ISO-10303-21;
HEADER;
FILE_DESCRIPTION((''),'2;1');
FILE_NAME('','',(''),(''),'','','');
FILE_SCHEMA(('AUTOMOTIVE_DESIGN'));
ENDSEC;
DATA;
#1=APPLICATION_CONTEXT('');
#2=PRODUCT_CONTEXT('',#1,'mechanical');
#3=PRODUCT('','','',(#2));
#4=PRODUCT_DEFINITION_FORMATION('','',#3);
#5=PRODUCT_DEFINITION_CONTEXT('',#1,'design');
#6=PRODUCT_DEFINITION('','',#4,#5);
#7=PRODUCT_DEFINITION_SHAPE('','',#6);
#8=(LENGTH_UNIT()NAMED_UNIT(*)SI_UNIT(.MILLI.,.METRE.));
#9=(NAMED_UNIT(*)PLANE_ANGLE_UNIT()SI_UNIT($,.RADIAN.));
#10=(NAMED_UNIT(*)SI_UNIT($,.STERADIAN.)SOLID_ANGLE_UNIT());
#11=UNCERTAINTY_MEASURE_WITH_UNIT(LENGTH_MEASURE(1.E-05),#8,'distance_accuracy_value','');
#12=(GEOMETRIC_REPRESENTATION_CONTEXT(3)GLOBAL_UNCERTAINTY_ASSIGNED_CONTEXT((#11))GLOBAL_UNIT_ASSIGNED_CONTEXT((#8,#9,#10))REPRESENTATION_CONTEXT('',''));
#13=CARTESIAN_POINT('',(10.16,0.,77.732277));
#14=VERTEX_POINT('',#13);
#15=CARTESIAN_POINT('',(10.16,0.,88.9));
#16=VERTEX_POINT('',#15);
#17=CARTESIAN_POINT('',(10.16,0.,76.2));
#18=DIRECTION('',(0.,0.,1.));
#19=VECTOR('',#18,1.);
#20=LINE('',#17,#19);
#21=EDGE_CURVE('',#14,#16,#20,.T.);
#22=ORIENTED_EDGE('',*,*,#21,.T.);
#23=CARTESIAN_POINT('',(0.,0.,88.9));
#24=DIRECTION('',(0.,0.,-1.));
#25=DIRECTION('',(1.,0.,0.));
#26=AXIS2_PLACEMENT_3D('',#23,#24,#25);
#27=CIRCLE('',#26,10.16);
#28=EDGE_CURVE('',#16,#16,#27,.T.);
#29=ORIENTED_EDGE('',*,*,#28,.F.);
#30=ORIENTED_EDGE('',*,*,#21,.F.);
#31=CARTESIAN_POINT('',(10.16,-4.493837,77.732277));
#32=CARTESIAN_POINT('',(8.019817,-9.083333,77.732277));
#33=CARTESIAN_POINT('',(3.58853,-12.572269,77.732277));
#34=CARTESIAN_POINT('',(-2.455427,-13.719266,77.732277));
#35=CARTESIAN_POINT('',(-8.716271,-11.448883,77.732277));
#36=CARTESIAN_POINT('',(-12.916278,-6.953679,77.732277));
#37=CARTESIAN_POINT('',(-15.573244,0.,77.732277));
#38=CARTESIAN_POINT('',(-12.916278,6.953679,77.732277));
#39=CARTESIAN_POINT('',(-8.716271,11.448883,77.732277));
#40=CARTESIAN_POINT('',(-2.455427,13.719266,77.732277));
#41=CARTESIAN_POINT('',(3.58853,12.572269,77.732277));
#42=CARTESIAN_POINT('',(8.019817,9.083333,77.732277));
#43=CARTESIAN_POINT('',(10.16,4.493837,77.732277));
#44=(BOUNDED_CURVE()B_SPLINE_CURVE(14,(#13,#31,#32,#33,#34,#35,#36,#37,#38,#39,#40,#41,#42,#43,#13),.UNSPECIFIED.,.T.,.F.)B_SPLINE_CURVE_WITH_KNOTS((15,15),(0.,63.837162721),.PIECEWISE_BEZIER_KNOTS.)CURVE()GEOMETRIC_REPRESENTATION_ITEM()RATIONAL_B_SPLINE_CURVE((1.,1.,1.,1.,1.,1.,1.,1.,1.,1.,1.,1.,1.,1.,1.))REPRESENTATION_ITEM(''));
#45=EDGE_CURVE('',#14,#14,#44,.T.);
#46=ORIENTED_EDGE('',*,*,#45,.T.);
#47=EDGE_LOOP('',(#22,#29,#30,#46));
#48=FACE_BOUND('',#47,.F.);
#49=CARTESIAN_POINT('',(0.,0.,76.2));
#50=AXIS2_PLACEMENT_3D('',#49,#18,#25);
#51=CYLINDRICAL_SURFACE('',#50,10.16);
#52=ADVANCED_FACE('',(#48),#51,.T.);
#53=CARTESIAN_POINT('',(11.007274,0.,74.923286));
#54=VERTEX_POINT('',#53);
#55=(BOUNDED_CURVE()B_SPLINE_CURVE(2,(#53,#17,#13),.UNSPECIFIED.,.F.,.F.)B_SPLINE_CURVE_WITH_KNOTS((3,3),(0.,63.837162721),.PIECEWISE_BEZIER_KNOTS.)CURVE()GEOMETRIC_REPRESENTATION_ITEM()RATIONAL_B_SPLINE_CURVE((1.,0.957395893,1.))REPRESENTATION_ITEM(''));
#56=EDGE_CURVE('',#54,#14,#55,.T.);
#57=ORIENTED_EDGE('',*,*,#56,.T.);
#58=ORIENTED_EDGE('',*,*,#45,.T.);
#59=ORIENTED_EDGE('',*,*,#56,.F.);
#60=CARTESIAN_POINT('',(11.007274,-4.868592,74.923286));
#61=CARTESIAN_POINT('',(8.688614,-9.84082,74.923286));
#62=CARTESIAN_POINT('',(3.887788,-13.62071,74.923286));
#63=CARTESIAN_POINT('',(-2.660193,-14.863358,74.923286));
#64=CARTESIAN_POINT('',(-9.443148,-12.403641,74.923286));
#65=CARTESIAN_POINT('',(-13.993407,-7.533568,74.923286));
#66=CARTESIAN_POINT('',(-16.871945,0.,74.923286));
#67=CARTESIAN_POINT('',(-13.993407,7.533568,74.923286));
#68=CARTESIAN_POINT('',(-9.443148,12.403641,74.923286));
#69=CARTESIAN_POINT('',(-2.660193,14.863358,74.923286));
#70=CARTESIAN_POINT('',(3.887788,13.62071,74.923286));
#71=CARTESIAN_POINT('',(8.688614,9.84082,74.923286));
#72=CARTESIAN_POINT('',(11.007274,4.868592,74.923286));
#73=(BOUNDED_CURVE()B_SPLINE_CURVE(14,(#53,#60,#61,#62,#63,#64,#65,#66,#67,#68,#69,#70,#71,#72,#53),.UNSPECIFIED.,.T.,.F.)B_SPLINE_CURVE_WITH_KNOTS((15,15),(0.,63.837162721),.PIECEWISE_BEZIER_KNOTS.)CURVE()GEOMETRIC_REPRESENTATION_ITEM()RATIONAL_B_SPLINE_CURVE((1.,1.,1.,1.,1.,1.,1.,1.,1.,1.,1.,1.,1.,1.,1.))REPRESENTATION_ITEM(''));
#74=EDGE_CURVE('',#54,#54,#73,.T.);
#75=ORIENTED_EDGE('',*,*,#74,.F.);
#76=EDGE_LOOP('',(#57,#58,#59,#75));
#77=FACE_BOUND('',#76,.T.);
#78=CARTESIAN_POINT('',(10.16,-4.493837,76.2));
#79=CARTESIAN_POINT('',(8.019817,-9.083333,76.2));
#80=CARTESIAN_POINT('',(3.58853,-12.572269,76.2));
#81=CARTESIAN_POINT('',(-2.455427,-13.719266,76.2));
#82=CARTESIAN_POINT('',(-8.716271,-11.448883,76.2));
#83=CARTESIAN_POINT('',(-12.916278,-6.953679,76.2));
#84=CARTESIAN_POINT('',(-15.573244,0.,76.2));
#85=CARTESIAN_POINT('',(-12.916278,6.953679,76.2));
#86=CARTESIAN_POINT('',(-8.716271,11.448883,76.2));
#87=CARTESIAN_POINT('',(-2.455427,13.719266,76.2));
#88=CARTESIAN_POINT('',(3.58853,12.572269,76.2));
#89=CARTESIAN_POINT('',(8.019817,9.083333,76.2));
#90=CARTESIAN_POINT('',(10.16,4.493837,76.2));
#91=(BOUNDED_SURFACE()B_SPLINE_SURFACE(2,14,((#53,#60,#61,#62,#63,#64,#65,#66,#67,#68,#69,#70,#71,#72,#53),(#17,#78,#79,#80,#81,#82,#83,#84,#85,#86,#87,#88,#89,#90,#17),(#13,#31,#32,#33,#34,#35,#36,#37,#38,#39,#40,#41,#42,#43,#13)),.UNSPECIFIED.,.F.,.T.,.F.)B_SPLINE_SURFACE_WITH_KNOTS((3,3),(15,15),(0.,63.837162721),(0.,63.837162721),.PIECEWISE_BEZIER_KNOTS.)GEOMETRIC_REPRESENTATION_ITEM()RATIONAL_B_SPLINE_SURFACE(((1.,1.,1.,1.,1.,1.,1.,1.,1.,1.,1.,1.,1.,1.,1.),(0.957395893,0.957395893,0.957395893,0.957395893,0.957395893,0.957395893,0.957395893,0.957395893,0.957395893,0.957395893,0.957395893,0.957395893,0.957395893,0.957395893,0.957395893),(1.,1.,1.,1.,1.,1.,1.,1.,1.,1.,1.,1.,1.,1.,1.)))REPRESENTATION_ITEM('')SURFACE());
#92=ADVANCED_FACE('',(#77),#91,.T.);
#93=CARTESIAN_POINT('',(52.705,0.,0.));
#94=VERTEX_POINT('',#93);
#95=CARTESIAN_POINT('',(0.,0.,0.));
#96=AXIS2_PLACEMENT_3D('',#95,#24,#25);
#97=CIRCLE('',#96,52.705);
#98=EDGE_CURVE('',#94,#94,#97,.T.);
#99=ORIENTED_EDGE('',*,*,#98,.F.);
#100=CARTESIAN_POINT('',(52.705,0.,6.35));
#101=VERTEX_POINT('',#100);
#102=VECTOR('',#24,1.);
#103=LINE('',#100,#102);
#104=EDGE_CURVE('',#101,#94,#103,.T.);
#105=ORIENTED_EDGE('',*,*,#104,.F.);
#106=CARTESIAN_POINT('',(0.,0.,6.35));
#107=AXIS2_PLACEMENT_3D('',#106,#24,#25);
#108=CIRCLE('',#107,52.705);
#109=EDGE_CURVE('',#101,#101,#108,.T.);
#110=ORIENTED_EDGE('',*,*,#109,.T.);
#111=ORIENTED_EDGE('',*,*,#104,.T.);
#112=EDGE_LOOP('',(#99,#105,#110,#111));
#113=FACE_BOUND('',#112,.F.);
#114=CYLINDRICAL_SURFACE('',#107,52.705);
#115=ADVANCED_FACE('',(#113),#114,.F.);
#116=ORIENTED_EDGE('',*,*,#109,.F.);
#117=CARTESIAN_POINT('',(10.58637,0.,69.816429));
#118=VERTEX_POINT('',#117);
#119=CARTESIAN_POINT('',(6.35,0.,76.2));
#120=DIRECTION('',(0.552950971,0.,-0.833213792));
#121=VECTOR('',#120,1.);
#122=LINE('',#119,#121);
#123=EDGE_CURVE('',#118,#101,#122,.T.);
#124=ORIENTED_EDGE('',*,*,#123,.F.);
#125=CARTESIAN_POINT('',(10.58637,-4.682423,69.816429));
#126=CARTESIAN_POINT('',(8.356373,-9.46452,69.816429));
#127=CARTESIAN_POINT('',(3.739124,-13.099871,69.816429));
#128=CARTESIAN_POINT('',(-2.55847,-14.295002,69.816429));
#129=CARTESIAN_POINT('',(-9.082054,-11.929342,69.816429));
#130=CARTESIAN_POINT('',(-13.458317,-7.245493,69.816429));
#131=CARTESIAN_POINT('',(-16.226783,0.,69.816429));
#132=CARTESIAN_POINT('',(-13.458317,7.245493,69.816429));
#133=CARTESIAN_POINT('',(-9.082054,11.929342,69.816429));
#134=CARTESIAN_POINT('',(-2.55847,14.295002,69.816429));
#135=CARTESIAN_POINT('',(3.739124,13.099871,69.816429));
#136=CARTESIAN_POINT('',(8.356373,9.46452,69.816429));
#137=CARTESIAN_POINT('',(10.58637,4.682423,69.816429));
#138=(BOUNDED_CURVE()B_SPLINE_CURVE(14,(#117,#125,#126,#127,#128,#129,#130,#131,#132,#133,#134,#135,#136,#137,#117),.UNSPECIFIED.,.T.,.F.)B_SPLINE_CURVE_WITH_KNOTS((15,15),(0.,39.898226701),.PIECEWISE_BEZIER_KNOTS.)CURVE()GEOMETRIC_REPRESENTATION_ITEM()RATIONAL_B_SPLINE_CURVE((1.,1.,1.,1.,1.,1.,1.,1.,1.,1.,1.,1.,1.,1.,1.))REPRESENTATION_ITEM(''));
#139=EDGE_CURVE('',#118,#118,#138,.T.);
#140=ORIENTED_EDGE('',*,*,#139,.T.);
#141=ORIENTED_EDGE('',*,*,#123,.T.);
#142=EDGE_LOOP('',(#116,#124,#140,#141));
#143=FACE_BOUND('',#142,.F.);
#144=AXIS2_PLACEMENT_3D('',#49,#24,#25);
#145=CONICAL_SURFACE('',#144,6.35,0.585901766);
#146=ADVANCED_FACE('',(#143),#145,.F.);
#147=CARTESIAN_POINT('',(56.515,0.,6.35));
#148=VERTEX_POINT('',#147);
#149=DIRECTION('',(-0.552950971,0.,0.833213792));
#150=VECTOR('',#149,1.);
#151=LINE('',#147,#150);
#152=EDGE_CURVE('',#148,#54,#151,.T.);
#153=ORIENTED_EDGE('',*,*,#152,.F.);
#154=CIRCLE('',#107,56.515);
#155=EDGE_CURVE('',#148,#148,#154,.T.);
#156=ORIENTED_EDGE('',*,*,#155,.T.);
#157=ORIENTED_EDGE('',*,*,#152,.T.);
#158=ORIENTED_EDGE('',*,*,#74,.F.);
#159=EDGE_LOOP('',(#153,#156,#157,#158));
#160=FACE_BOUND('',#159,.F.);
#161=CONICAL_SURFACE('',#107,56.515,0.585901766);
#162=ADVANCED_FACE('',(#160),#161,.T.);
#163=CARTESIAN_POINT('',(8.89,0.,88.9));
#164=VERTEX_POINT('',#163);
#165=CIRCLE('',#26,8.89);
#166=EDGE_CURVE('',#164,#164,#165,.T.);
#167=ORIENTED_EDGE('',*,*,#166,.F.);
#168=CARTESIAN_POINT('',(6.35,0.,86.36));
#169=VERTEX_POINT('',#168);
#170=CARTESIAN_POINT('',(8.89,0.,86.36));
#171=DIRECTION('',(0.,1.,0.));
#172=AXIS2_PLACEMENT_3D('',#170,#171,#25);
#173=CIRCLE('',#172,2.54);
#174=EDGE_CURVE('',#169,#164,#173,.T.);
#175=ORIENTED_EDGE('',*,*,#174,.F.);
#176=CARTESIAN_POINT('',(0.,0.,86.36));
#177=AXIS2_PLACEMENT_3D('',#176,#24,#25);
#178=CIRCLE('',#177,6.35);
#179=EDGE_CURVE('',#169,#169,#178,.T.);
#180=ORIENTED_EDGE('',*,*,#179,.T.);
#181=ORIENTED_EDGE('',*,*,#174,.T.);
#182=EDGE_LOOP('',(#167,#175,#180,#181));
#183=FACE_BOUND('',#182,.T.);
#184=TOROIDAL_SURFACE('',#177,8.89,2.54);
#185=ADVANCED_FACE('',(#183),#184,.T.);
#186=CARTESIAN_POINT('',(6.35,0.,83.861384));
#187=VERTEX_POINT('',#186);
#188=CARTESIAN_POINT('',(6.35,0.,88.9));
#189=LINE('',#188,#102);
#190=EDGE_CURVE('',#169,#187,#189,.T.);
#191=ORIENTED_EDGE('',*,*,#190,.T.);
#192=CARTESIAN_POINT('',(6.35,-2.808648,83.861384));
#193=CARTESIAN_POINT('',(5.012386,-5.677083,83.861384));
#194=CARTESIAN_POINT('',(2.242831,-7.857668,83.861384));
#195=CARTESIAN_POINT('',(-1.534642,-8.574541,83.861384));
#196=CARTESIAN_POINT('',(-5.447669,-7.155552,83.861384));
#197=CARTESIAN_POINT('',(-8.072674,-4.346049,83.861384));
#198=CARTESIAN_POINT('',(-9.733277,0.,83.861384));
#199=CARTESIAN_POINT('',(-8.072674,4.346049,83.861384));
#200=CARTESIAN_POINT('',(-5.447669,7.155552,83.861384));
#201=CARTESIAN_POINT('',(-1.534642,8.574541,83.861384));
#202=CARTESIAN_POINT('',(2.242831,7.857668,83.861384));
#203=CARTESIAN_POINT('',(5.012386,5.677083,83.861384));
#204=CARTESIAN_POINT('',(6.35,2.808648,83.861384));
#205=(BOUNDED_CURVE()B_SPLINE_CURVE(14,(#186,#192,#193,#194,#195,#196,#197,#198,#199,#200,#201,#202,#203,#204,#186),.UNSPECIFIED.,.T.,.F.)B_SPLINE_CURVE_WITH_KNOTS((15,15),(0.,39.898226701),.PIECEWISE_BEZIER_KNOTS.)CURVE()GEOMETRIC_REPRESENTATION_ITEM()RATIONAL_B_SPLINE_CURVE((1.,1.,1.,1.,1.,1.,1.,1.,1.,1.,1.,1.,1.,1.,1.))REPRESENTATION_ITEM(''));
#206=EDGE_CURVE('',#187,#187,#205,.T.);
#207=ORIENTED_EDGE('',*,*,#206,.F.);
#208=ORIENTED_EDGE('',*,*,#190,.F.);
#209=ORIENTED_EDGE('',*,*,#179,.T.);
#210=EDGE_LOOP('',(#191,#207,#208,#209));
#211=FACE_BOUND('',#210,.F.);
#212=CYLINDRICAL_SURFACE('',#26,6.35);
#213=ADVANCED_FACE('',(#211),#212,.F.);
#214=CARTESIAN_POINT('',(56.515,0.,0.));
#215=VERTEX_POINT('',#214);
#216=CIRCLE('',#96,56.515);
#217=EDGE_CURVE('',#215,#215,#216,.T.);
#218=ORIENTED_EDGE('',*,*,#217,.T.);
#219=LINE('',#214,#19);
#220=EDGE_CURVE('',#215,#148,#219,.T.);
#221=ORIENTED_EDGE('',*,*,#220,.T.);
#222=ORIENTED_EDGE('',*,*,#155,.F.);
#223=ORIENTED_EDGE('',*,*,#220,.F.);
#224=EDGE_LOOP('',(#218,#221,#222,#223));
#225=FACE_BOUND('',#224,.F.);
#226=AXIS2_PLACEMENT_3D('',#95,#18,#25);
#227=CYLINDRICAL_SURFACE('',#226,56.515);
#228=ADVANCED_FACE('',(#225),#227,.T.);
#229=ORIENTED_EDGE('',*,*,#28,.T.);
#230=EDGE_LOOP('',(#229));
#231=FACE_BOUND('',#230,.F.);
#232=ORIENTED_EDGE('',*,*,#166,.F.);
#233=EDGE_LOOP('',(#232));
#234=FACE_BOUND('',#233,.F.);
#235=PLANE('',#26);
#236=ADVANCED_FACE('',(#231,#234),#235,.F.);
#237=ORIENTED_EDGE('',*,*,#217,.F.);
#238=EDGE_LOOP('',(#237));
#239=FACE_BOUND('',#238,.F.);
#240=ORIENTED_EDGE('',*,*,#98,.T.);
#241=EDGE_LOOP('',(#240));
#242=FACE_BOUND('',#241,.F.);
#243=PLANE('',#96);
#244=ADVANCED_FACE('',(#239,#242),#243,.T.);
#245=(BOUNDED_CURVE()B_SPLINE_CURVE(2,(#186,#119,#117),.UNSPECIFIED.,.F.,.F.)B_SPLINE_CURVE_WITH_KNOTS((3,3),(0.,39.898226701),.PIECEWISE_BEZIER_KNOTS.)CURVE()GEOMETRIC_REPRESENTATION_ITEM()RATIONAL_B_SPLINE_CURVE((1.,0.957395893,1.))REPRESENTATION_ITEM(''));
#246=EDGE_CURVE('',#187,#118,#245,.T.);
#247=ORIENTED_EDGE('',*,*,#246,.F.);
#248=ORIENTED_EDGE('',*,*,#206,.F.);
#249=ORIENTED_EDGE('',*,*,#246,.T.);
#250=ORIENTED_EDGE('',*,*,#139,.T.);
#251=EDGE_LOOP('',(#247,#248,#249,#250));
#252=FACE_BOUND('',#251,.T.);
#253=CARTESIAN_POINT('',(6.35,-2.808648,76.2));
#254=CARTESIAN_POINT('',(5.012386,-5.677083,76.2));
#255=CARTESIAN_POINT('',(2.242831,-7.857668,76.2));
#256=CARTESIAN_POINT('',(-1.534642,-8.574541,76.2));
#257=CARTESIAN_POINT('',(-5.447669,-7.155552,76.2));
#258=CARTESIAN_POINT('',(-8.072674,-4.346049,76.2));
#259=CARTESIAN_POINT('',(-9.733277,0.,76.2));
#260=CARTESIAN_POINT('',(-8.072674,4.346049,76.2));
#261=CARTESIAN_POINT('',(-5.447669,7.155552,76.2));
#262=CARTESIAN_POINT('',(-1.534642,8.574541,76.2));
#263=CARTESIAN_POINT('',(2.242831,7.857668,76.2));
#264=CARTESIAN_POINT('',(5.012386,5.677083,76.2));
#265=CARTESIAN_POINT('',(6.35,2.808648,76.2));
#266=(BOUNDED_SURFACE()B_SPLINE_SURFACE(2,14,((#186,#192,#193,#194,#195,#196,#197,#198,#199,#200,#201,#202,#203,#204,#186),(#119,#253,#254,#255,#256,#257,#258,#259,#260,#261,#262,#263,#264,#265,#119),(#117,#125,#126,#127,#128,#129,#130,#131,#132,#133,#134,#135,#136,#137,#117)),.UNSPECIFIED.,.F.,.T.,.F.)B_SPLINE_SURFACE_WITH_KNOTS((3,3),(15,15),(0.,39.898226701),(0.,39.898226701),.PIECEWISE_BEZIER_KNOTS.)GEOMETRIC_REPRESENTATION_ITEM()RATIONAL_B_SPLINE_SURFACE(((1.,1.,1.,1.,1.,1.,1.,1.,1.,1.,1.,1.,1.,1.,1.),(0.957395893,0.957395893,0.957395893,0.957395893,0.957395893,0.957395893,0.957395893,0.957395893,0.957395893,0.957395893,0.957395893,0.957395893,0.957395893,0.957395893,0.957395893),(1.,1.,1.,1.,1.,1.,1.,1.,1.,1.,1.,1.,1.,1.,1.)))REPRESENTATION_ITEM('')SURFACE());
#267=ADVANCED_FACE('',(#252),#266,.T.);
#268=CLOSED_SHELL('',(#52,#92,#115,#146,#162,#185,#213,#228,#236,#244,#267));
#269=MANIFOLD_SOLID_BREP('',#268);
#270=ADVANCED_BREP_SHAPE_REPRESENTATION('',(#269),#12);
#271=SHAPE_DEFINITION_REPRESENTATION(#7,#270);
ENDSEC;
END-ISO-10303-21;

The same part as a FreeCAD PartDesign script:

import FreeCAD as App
import Part
import Sketcher
from FreeCAD import Vector
Q = App.Units.Quantity


def edges_at(feature, points):
    """Names of the edges that pass closest to the given points."""
    edges = feature.Shape.Edges
    near = lambda p: min(range(len(edges)), key=lambda i: edges[i].distToShape(Part.Vertex(*p))[0])
    return sorted({f"Edge{near(p) + 1}" for p in points})


def add_polygon(sketch, points):
    """Adds a closed chain of lines whose ends are joined by coincident constraints."""
    first, n = sketch.GeometryCount, len(points)
    for a, b in zip(points, points[1:] + points[:1]):
        sketch.addGeometry(Part.LineSegment(App.Vector(*a, 0), App.Vector(*b, 0)), False)
    for i in range(n):
        sketch.addConstraint(Sketcher.Constraint("Coincident", first + i, 2, first + (i + 1) % n, 1))

doc = App.newDocument("Part")
body = doc.addObject("PartDesign::Body", "Body")

# Sketch on XZ plane
sketch1 = body.newObject("Sketcher::SketchObject", "Sketch")
sketch1.AttachmentSupport = (doc.getObject("XZ_Plane"), [""])
sketch1.MapMode = "FlatFace"
add_polygon(sketch1, [(52.7, 6.3), (52.7, 0), (56.5, 0), (56.5, 6.3), (10.2, 76.2), (10.2, 88.9), (6.3, 88.9), (6.3, 76.2)])  # lines 0-7
sketch1.addConstraint([
    Sketcher.Constraint("Vertical", 0),
    Sketcher.Constraint("Horizontal", 1),
    Sketcher.Constraint("Vertical", 2),
    Sketcher.Constraint("Vertical", 4),
    Sketcher.Constraint("Horizontal", 5),
    Sketcher.Constraint("Vertical", 6),
    Sketcher.Constraint("PointOnObject", 0, 2, -1),
    Sketcher.Constraint("Parallel", 3, 7),
    Sketcher.Constraint("Horizontal", 3, 2, 6, 2),
    Sketcher.Constraint("Horizontal", 2, 2, 7, 2),
    Sketcher.Constraint("DistanceY", 4, 1, 4, 2, Q("0.5 in")),
    Sketcher.Constraint("DistanceY", -1, 1, 3, 2, Q("3 in")),
    Sketcher.Constraint("DistanceX", 1, 1, 1, 2, Q("0.15 in")),
    Sketcher.Constraint("DistanceY", 0, 2, 0, 1, Q("0.25 in")),
    Sketcher.Constraint("DistanceX", -1, 1, 3, 2, Q("0.4 in")),
    Sketcher.Constraint("DistanceX", -1, 1, 0, 2, Q("2.075 in")),
])
revolution = body.newObject("PartDesign::Revolution", "Revolution")
revolution.Profile = sketch1
revolution.ReferenceAxis = (sketch1, ["V_Axis"])
revolution.Angle = 360
doc.recompute()

fillet = body.newObject("PartDesign::Fillet", "Fillet")
fillet.Base = (revolution, edges_at(revolution, [(-10.16, 0, 76.2)]))
fillet.Radius = Q("0.2 in")
doc.recompute()

fillet2 = body.newObject("PartDesign::Fillet", "Fillet001")
fillet2.Base = (fillet, edges_at(fillet, [(-6.35, 0, 76.2)]))
fillet2.Radius = Q("1 in")
doc.recompute()

fillet3 = body.newObject("PartDesign::Fillet", "Fillet002")
fillet3.Base = (fillet2, edges_at(fillet2, [(-6.35, 0, 88.9)]))
fillet3.Radius = Q("0.1 in")

doc.recompute()
